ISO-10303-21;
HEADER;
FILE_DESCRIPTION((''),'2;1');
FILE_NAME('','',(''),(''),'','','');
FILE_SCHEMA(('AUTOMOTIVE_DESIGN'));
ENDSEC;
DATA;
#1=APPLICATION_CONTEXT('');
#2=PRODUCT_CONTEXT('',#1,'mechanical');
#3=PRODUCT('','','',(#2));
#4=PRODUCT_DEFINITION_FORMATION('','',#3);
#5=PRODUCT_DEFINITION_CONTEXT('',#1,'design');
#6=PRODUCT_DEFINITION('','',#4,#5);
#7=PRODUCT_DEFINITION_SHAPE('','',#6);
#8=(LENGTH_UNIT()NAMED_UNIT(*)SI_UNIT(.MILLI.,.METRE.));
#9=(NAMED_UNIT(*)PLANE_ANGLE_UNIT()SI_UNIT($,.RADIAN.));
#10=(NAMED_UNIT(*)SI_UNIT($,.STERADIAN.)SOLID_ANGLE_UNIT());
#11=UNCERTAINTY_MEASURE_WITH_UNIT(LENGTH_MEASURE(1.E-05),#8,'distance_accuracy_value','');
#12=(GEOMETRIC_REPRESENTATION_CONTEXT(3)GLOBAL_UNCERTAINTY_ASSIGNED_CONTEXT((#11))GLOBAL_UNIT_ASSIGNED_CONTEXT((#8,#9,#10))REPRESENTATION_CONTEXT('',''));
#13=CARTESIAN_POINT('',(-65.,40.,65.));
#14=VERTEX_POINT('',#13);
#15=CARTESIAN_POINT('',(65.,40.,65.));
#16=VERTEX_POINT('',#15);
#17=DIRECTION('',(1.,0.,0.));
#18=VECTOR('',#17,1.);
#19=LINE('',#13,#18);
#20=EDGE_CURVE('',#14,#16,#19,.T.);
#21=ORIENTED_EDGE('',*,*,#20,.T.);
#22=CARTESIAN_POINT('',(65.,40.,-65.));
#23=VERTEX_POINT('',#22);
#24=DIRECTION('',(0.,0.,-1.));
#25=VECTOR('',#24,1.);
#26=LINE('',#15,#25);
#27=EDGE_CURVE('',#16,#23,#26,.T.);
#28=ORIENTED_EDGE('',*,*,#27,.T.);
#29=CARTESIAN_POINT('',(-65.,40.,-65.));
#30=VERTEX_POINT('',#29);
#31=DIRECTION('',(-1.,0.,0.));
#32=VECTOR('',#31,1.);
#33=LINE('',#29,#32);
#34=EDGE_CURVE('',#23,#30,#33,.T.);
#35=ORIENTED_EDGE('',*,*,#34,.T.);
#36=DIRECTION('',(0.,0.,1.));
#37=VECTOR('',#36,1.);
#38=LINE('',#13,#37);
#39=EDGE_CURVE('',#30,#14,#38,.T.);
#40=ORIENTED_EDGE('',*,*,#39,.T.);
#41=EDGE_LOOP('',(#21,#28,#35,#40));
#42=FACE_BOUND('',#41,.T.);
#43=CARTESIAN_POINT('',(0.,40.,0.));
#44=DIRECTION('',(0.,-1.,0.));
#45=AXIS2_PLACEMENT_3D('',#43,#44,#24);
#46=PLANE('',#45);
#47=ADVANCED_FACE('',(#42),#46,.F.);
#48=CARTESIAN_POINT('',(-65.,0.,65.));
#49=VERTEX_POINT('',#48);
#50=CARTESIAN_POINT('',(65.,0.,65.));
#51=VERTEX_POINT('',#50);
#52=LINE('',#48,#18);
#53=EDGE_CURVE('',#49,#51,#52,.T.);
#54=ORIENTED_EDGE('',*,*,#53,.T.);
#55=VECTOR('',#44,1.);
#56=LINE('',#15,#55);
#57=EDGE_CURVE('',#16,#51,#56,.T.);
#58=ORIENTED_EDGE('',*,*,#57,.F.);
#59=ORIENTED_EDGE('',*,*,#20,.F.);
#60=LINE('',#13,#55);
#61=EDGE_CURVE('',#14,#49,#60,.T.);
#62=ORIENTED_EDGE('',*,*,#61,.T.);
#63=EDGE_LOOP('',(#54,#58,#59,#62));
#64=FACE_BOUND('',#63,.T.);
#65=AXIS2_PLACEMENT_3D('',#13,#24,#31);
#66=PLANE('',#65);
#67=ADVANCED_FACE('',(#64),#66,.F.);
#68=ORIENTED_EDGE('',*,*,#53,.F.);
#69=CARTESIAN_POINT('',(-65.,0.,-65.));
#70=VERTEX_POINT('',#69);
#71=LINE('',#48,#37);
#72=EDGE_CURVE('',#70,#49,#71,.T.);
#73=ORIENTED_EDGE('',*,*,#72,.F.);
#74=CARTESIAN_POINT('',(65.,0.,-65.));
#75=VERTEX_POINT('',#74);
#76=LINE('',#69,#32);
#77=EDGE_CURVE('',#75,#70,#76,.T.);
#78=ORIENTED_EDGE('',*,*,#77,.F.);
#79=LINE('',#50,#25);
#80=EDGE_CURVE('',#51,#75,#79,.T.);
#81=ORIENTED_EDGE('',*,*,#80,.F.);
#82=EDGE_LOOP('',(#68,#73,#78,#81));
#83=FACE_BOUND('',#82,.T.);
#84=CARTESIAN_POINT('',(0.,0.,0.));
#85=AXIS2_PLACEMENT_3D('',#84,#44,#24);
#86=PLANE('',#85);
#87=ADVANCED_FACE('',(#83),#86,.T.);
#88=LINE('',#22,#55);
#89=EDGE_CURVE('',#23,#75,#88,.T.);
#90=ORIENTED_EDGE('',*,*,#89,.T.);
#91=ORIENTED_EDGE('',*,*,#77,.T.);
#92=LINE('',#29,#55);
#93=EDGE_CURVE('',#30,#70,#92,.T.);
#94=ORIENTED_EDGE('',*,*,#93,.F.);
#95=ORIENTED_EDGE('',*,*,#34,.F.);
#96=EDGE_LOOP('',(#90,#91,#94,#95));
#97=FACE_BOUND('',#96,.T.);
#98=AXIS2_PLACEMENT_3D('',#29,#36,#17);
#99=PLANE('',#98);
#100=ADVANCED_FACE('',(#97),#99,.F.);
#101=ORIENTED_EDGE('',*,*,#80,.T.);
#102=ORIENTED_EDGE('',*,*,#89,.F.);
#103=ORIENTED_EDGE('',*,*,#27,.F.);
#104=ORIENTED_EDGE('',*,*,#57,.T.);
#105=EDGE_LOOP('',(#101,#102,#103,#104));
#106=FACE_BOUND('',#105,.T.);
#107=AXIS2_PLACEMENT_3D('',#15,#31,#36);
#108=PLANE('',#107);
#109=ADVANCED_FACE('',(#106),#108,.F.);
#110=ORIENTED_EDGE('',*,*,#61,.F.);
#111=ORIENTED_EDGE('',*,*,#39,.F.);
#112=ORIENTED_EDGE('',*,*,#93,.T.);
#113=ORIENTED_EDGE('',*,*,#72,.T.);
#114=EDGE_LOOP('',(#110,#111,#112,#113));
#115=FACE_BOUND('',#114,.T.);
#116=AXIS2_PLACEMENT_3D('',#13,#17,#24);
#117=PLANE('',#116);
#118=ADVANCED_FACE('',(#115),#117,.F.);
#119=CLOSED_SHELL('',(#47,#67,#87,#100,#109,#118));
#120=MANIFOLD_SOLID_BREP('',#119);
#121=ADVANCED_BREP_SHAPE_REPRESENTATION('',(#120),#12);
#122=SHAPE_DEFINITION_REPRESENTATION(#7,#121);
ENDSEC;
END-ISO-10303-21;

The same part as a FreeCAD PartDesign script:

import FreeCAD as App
import Part
import Sketcher

V = App.Vector
Q = App.Units.Quantity


def add_polygon(sketch, points):
    """Adds a closed chain of lines whose ends are joined by coincident constraints."""
    first, n = sketch.GeometryCount, len(points)
    for a, b in zip(points, points[1:] + points[:1]):
        sketch.addGeometry(Part.LineSegment(App.Vector(*a, 0), App.Vector(*b, 0)), False)
    for i in range(n):
        sketch.addConstraint(Sketcher.Constraint("Coincident", first + i, 2, first + (i + 1) % n, 1))

doc = App.newDocument("Part")
body = doc.addObject("PartDesign::Body", "Body")

# Sketch on XZ plane
sketch1 = body.newObject("Sketcher::SketchObject", "Sketch")
sketch1.AttachmentSupport = (doc.getObject("XZ_Plane"), [""])
sketch1.MapMode = "FlatFace"
add_polygon(sketch1, [(-65, -65), (-65, 65), (65, 65), (65, -65)])  # lines 0-3
sketch1.addConstraint([
    Sketcher.Constraint("Vertical", 0),
    Sketcher.Constraint("Horizontal", 1),
    Sketcher.Constraint("Vertical", 2),
    Sketcher.Constraint("Horizontal", 3),
    Sketcher.Constraint("Symmetric", 0, 2, 2, 2, -1, 1),
    Sketcher.Constraint("Equal", 3, 0),
    Sketcher.Constraint("DistanceX", 1, 1, 1, 2, Q("130 mm")),
])
pad1 = body.newObject("PartDesign::Pad", "Pad")
pad1.Profile = sketch1
pad1.Length = 40
pad1.Reversed = True

doc.recompute()
